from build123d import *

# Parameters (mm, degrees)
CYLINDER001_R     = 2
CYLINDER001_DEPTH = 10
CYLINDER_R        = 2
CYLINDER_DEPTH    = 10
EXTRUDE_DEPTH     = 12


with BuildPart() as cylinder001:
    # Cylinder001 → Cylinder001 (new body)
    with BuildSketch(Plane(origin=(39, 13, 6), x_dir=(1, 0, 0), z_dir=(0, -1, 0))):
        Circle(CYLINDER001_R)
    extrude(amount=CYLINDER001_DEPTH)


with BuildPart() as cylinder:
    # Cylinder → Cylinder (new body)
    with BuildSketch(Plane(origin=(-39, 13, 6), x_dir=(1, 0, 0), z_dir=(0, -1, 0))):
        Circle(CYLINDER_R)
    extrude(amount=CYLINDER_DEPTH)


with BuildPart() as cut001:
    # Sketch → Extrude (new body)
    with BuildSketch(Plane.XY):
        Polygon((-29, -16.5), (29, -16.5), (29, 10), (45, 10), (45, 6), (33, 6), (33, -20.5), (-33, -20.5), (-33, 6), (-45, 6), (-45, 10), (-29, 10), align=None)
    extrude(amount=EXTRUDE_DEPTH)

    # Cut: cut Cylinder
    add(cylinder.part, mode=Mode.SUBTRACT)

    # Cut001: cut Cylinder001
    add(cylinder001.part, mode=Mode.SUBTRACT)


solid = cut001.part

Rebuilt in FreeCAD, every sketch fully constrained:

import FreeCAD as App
import Part
import Sketcher

V = App.Vector
Q = App.Units.Quantity


def add_polygon(sketch, points):
    """Adds a closed chain of lines whose ends are joined by coincident constraints."""
    first, n = sketch.GeometryCount, len(points)
    for a, b in zip(points, points[1:] + points[:1]):
        sketch.addGeometry(Part.LineSegment(App.Vector(*a, 0), App.Vector(*b, 0)), False)
    for i in range(n):
        sketch.addConstraint(Sketcher.Constraint("Coincident", first + i, 2, first + (i + 1) % n, 1))

doc = App.newDocument("Part")
body = doc.addObject("PartDesign::Body", "Body")

# Sketch on XZ plane
sketch1 = body.newObject("Sketcher::SketchObject", "Sketch")
sketch1.AttachmentSupport = (doc.getObject("XZ_Plane"), [""])
sketch1.MapMode = "FlatFace"
sketch1.AttachmentOffset = App.Placement(V(0, 0, -13), App.Rotation())
sketch1.addGeometry(Part.Circle(V(39, 6, 0), V(0, 0, 1), 2), False)
sketch1.addConstraint(Sketcher.Constraint("Diameter", 0, Q("4 mm")))
sketch1.addConstraint(Sketcher.Constraint("DistanceX", -1, 1, 0, 3, Q("39 mm")))
sketch1.addConstraint(Sketcher.Constraint("DistanceY", -1, 1, 0, 3, Q("6 mm")))
pad1 = body.newObject("PartDesign::Pad", "Pad")
pad1.Profile = sketch1
pad1.Length = 10
body2 = doc.addObject("PartDesign::Body", "Body001")

# Sketch on XZ plane
sketch2 = body2.newObject("Sketcher::SketchObject", "Sketch001")
sketch2.AttachmentSupport = (doc.getObject("XZ_Plane001"), [""])
sketch2.MapMode = "FlatFace"
sketch2.AttachmentOffset = App.Placement(V(0, 0, -13), App.Rotation())
sketch2.addGeometry(Part.Circle(V(-39, 6, 0), V(0, 0, 1), 2), False)
sketch2.addConstraint(Sketcher.Constraint("Diameter", 0, Q("4 mm")))
sketch2.addConstraint(Sketcher.Constraint("DistanceX", 0, 3, -1, 1, Q("39 mm")))
sketch2.addConstraint(Sketcher.Constraint("DistanceY", -1, 1, 0, 3, Q("6 mm")))
pad2 = body2.newObject("PartDesign::Pad", "Pad001")
pad2.Profile = sketch2
pad2.Length = 10
body3 = doc.addObject("PartDesign::Body", "Body002")

# Sketch on XY plane
sketch3 = body3.newObject("Sketcher::SketchObject", "Sketch002")
sketch3.AttachmentSupport = (doc.getObject("XY_Plane002"), [""])
sketch3.MapMode = "FlatFace"
add_polygon(sketch3, [(29, -16.5), (-29, -16.5), (-29, 10), (-45, 10), (-45, 6), (-33, 6), (-33, -20.5), (33, -20.5), (33, 6), (45, 6), (45, 10), (29, 10)])  # lines 0-11
sketch3.addConstraint(Sketcher.Constraint("Horizontal", 0))
sketch3.addConstraint(Sketcher.Constraint("Vertical", 1))
sketch3.addConstraint(Sketcher.Constraint("Horizontal", 2))
sketch3.addConstraint(Sketcher.Constraint("Vertical", 3))
sketch3.addConstraint(Sketcher.Constraint("Horizontal", 4))
sketch3.addConstraint(Sketcher.Constraint("Vertical", 5))
sketch3.addConstraint(Sketcher.Constraint("Horizontal", 6))
sketch3.addConstraint(Sketcher.Constraint("Vertical", 7))
sketch3.addConstraint(Sketcher.Constraint("Horizontal", 8))
sketch3.addConstraint(Sketcher.Constraint("Vertical", 9))
sketch3.addConstraint(Sketcher.Constraint("Horizontal", 10))
sketch3.addConstraint(Sketcher.Constraint("Vertical", 11))
sketch3.addConstraint(Sketcher.Constraint("Symmetric", 4, 2, 7, 2, -2))
sketch3.addConstraint(Sketcher.Constraint("Symmetric", 2, 2, 9, 2, -2))
sketch3.addConstraint(Sketcher.Constraint("Equal", 2, 10))
sketch3.addConstraint(Sketcher.Constraint("Equal", 1, 5))
sketch3.addConstraint(Sketcher.Constraint("DistanceX", 0, 2, 0, 1, Q("58 mm")))
sketch3.addConstraint(Sketcher.Constraint("DistanceX", 2, 2, 2, 1, Q("16 mm")))
sketch3.addConstraint(Sketcher.Constraint("DistanceX", 4, 1, 4, 2, Q("12 mm")))
sketch3.addConstraint(Sketcher.Constraint("DistanceY", 3, 2, 3, 1, Q("4 mm")))
sketch3.addConstraint(Sketcher.Constraint("DistanceY", 1, 1, 1, 2, Q("26.5 mm")))
sketch3.addConstraint(Sketcher.Constraint("DistanceY", -1, 1, 1, 2, Q("10 mm")))
pad3 = body3.newObject("PartDesign::Pad", "Pad002")
pad3.Profile = sketch3
pad3.Length = 12
doc.recompute()

boolean = body3.newObject("PartDesign::Boolean", "Boolean")
boolean.Type = "Cut"
boolean.addObjects([body2])
doc.recompute()

boolean2 = body3.newObject("PartDesign::Boolean", "Boolean001")
boolean2.Type = "Cut"
boolean2.addObjects([body])

doc.recompute()
